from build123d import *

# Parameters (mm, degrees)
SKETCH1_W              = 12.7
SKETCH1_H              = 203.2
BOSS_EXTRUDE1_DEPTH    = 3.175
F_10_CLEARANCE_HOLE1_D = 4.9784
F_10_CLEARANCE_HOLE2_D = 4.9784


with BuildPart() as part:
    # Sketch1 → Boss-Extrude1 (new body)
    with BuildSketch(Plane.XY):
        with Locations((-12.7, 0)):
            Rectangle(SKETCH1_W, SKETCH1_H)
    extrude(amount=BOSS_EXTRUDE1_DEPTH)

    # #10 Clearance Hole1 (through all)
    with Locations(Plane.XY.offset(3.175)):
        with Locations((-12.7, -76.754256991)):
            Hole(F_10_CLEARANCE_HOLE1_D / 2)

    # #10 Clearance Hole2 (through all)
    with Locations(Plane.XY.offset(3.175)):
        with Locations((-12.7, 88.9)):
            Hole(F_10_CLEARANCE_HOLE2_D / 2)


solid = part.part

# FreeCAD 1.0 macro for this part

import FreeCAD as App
import Part
import Sketcher
Q = App.Units.Quantity

doc = App.newDocument("Part")
body = doc.addObject("PartDesign::Body", "Body")

sketch1 = body.newObject("Sketcher::SketchObject", "Sketch")
sketch1.AttachmentSupport = (doc.getObject("XY_Plane"), [""])
sketch1.MapMode = "FlatFace"
sketch1.addGeometry([
    Part.LineSegment(App.Vector(-19.05, 101.6, 0), App.Vector(-19.05, -101.6, 0)),
    Part.LineSegment(App.Vector(-19.05, -101.6, 0), App.Vector(-6.35, -101.6, 0)),
    Part.LineSegment(App.Vector(-6.35, -101.6, 0), App.Vector(-6.35, 101.6, 0)),
    Part.LineSegment(App.Vector(-6.35, 101.6, 0), App.Vector(-19.05, 101.6, 0)),
], False)
sketch1.addConstraint([
    Sketcher.Constraint("Coincident", 0, 2, 1, 1),
    Sketcher.Constraint("Coincident", 1, 2, 2, 1),
    Sketcher.Constraint("Coincident", 2, 2, 3, 1),
    Sketcher.Constraint("Coincident", 3, 2, 0, 1),
    Sketcher.Constraint("Vertical", 0),
    Sketcher.Constraint("Horizontal", 1),
    Sketcher.Constraint("Vertical", 2),
    Sketcher.Constraint("Horizontal", 3),
    Sketcher.Constraint("DistanceY", 0, 2, 0, 1, Q("8 in")),
    Sketcher.Constraint("DistanceX", 1, 1, 1, 2, Q("0.5 in")),
    Sketcher.Constraint("DistanceY", 0, 2, -1, 1, Q("4 in")),
    Sketcher.Constraint("DistanceX", 0, 2, -1, 1, Q("0.75 in")),
])
pad1 = body.newObject("PartDesign::Pad", "Pad")
pad1.Profile = sketch1
pad1.Length = Q("0.125 in")

sketch2 = body.newObject("Sketcher::SketchObject", "Sketch001")
sketch2.AttachmentSupport = (doc.getObject("XY_Plane"), [""])
sketch2.MapMode = "FlatFace"
sketch2.AttachmentOffset = App.Placement(App.Vector(0, 0, 0.125 * 25.4), App.Rotation())
sketch2.addGeometry(Part.Circle(App.Vector(-12.7, -76.754257, 0), App.Vector(0, 0, 1), 2.4892), False)
sketch2.addConstraint([
    Sketcher.Constraint("Diameter", 0, Q("0.196 in")),
    Sketcher.Constraint("DistanceX", 0, 3, -1, 1, Q("0.5 in")),
    Sketcher.Constraint("DistanceY", 0, 3, -1, 1, 76.754257),
])
doc.recompute()
hole = body.newObject("PartDesign::Hole", "Hole")
hole.Profile = sketch2
hole.ThreadType = "None"
hole.Diameter = Q("0.196 in")
hole.DepthType = "ThroughAll"

sketch3 = body.newObject("Sketcher::SketchObject", "Sketch002")
sketch3.AttachmentSupport = (doc.getObject("XY_Plane"), [""])
sketch3.MapMode = "FlatFace"
sketch3.AttachmentOffset = App.Placement(App.Vector(0, 0, 0.125 * 25.4), App.Rotation())
sketch3.addGeometry(Part.Circle(App.Vector(-12.7, 88.9, 0), App.Vector(0, 0, 1), 2.4892), False)
sketch3.addConstraint([
    Sketcher.Constraint("Diameter", 0, Q("0.196 in")),
    Sketcher.Constraint("DistanceX", 0, 3, -1, 1, Q("0.5 in")),
    Sketcher.Constraint("DistanceY", -1, 1, 0, 3, Q("3.5 in")),
])
doc.recompute()
hole2 = body.newObject("PartDesign::Hole", "Hole001")
hole2.Profile = sketch3
hole2.ThreadType = "None"
hole2.Diameter = Q("0.196 in")
hole2.DepthType = "ThroughAll"

doc.recompute()
